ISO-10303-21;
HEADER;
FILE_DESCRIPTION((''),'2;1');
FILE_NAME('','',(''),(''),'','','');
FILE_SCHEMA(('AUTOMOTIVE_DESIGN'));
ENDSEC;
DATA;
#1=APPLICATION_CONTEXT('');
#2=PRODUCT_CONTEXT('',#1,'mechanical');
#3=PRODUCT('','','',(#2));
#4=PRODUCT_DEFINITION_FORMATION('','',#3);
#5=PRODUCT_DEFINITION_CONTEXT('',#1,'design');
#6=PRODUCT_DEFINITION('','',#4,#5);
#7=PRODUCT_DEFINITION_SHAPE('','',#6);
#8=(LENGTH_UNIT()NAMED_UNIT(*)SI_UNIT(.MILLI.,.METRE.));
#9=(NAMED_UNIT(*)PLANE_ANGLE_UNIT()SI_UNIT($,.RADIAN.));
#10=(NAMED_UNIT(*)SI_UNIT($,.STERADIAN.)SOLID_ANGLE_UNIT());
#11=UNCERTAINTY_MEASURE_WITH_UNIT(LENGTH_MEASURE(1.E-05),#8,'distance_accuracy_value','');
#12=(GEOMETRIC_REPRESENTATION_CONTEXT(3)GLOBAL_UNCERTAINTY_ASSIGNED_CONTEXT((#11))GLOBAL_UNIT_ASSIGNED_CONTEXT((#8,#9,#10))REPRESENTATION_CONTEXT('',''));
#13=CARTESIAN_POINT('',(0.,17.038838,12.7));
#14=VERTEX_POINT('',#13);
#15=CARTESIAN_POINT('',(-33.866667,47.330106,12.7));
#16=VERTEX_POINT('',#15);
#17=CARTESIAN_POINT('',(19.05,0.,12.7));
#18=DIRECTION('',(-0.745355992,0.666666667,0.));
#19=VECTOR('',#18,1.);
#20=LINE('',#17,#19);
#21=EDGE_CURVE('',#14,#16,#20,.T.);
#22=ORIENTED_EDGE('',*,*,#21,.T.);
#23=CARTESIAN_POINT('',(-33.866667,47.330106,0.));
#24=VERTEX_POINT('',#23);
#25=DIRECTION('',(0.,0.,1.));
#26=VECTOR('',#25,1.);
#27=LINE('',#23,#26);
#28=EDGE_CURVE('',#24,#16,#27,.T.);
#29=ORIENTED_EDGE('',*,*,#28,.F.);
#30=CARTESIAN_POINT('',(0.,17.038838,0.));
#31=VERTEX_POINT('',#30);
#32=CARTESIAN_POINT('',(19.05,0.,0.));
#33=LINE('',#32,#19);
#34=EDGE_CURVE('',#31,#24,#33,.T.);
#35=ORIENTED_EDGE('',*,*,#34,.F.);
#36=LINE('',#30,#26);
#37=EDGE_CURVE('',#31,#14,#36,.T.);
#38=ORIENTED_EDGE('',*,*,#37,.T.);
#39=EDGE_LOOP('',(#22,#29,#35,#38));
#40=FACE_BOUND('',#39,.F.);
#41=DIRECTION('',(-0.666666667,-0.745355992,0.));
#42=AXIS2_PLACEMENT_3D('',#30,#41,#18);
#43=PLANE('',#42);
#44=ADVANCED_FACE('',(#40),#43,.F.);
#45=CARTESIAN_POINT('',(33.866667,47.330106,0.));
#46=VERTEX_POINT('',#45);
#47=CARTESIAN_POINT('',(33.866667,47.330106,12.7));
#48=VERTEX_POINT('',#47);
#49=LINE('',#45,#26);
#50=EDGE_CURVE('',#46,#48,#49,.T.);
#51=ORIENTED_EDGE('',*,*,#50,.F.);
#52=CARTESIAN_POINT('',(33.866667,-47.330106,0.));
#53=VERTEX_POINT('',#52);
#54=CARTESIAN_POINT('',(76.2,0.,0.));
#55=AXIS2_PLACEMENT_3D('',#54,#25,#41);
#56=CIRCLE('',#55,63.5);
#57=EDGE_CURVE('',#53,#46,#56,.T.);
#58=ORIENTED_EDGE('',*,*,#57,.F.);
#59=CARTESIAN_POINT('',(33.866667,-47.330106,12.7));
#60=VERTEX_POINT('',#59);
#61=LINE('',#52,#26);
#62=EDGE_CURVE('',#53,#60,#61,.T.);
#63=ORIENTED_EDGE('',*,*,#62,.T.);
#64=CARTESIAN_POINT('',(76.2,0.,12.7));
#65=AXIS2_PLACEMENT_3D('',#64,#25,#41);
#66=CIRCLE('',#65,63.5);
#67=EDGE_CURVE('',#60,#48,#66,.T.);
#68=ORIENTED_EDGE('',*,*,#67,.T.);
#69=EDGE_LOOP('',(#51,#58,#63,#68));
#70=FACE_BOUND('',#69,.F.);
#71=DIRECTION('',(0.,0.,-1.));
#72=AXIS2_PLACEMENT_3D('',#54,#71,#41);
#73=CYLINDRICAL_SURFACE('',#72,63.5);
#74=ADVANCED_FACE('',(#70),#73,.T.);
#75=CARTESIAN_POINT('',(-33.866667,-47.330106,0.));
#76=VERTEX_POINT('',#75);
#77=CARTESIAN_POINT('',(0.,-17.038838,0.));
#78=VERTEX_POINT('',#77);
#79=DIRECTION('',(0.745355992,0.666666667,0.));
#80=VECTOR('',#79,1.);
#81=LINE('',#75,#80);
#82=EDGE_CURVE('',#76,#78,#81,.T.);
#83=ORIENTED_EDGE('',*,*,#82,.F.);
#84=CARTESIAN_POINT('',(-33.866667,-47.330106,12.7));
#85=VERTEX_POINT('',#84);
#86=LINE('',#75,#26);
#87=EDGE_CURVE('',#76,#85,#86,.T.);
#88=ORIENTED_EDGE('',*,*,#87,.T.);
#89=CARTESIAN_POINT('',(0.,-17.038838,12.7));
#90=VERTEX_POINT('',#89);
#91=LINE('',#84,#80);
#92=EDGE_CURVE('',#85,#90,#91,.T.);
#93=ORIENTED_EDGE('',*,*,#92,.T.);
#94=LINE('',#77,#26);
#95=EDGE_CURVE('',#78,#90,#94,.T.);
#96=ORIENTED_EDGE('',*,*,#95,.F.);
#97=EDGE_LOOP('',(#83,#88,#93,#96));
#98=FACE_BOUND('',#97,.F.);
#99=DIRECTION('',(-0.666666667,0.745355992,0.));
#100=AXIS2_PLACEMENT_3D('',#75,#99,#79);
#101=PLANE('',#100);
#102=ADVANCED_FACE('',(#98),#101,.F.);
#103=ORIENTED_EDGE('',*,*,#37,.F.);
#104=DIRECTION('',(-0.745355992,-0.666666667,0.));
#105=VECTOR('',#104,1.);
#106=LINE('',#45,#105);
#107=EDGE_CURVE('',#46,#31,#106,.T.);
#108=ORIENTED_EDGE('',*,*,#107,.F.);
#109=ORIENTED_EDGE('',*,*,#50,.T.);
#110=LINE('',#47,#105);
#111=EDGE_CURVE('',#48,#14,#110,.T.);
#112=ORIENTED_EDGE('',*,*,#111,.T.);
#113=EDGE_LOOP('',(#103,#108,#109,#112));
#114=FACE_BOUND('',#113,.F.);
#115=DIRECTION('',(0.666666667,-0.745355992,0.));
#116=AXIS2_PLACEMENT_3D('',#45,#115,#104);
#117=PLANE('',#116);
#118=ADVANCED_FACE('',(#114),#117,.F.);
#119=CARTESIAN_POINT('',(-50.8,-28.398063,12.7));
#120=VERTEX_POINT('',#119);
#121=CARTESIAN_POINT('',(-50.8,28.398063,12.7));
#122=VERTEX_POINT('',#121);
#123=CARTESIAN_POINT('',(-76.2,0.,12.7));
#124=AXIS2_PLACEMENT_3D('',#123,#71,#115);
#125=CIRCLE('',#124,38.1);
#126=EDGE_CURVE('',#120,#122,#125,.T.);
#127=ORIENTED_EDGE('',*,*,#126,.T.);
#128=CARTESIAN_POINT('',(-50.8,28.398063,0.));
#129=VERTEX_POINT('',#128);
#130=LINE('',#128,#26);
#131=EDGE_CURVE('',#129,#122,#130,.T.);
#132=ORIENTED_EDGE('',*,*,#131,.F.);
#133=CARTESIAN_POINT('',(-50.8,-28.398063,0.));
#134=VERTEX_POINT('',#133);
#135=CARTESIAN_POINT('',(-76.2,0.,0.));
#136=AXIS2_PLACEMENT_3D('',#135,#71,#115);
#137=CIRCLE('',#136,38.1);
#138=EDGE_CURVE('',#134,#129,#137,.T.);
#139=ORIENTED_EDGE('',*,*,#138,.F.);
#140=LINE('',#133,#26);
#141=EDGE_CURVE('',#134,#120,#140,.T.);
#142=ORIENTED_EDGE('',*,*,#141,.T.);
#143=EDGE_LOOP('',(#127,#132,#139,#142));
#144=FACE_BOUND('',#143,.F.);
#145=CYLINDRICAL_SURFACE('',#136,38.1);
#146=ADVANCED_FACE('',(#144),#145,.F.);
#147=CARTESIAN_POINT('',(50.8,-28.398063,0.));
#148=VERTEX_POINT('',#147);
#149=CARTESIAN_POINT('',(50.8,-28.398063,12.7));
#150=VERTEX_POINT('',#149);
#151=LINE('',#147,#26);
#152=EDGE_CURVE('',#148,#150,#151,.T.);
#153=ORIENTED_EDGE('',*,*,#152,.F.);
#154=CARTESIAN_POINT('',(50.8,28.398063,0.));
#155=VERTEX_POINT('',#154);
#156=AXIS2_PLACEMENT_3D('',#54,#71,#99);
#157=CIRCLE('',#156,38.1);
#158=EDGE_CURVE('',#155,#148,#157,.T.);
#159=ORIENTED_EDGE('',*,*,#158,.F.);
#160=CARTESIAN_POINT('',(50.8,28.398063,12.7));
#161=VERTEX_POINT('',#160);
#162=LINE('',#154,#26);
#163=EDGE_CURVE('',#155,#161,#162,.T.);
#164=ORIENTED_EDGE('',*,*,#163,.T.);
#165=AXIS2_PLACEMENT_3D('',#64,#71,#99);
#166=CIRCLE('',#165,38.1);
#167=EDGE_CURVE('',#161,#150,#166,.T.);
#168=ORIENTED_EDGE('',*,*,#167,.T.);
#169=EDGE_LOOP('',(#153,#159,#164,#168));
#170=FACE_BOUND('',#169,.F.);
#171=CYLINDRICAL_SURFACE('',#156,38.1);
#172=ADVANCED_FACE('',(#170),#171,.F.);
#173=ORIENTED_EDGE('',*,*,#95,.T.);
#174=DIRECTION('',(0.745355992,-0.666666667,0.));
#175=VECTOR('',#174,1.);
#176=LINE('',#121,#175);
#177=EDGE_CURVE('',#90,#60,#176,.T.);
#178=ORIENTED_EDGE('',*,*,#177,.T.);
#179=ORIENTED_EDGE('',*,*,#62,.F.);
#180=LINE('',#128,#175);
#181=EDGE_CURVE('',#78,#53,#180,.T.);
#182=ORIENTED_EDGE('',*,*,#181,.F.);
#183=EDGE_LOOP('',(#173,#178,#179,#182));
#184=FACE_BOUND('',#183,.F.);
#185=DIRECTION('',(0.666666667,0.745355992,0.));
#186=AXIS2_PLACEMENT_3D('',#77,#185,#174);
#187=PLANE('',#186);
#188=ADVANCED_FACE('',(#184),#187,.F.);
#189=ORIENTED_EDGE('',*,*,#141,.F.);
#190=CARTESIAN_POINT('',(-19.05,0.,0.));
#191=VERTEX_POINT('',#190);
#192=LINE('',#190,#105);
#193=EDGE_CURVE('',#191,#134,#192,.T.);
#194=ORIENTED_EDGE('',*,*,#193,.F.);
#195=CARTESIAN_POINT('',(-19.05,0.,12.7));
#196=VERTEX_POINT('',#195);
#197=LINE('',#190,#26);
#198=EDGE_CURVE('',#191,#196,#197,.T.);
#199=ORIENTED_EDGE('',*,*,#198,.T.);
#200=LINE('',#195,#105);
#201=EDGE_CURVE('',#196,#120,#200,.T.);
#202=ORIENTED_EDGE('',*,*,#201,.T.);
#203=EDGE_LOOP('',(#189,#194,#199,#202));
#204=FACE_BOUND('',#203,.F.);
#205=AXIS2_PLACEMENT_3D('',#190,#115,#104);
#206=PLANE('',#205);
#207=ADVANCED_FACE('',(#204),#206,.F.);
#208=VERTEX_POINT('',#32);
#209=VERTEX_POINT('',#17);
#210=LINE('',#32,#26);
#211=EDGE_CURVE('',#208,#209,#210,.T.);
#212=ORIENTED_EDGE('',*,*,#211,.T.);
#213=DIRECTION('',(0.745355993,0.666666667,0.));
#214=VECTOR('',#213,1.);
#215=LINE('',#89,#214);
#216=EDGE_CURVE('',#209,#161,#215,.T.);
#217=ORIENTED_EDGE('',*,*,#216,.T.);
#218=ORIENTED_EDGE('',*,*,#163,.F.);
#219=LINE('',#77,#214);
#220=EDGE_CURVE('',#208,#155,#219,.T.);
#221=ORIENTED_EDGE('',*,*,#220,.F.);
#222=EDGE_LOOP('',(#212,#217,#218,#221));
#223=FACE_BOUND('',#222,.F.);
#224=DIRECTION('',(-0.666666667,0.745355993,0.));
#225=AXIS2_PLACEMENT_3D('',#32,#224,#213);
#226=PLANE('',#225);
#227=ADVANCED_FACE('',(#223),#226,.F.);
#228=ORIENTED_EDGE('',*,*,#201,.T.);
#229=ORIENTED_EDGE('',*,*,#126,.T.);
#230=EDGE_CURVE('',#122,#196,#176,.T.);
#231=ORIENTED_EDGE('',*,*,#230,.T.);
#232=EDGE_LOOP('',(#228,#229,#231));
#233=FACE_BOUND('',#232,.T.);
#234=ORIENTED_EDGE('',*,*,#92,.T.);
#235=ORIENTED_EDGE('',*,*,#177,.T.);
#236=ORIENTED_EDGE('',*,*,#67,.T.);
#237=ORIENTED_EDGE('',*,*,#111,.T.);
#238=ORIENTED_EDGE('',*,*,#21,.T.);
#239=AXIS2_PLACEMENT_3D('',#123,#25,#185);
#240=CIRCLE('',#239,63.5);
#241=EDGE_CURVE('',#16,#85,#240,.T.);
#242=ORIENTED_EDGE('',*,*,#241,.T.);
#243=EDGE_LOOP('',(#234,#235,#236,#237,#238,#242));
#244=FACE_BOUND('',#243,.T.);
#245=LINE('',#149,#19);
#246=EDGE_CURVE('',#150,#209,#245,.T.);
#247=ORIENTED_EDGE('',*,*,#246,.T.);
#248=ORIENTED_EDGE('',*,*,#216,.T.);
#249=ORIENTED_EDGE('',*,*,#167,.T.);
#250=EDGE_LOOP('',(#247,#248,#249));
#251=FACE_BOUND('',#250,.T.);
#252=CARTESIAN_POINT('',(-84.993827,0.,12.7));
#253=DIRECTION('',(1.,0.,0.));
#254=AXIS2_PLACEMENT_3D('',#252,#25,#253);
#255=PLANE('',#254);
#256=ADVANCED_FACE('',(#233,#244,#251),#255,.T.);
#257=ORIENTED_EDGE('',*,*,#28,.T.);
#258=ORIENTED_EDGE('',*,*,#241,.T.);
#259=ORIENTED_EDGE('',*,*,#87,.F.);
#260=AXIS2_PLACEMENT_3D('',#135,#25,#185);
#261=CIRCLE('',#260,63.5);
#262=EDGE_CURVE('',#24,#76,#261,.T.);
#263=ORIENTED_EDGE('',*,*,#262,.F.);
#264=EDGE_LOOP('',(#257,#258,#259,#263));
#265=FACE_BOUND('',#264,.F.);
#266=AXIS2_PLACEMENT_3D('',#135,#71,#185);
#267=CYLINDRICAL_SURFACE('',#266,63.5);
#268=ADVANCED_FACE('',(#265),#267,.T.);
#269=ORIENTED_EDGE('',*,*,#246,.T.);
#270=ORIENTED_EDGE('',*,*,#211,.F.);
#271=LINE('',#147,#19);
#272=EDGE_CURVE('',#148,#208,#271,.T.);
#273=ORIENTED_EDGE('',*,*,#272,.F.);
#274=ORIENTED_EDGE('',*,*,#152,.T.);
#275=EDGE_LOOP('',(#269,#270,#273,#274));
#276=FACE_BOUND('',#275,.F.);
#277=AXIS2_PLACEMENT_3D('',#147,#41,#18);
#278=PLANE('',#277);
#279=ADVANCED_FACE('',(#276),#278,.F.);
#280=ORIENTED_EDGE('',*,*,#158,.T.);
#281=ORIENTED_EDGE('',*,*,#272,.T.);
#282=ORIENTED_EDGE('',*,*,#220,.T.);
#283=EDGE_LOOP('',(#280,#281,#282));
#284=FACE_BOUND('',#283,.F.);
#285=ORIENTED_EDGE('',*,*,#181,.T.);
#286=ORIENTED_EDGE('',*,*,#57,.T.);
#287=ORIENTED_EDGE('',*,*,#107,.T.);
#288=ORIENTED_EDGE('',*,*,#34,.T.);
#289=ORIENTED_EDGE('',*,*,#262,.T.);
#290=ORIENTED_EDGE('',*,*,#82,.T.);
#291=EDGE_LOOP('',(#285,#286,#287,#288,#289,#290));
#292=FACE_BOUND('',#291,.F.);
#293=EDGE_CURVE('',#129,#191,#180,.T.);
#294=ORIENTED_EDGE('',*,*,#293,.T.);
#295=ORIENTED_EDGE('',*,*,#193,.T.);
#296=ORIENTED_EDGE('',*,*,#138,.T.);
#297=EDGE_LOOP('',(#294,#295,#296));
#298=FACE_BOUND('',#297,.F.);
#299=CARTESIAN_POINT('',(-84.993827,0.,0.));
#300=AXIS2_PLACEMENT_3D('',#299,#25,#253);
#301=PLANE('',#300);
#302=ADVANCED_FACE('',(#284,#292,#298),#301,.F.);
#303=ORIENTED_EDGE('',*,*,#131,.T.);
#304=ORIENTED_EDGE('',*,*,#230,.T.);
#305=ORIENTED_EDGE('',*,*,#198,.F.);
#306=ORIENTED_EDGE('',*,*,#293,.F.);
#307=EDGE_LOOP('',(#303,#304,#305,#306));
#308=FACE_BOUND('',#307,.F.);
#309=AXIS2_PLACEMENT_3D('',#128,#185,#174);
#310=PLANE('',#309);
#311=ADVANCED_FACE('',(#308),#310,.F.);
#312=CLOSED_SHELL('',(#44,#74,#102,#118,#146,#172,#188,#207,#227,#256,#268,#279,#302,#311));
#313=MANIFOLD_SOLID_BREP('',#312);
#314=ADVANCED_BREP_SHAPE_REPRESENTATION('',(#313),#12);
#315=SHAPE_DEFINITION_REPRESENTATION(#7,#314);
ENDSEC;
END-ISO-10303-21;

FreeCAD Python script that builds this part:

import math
import FreeCAD as App
import Part
import Sketcher
Q = App.Units.Quantity

doc = App.newDocument("Part")
params = doc.addObject("Spreadsheet::Sheet", "Params")
for row, (alias, value) in enumerate([
    ("sketch1_radius", "2.5 in"),
    ("sketch1_radius2", "1.5 in"),
    ("pad1_length", "0.5 in"),
], start=1):
    params.set(f"A{row}", alias)
    params.set(f"B{row}", "=" + value)
    params.setAlias(f"B{row}", alias)

body = doc.addObject("PartDesign::Body", "Body")

sketch1 = body.newObject("Sketcher::SketchObject", "Sketch")
sketch1.AttachmentSupport = (doc.getObject("XY_Plane"), [""])
sketch1.MapMode = "FlatFace"
sketch1.addGeometry([
    Part.LineSegment(App.Vector(0, -17, 0), App.Vector(34, -47, 0)),
    Part.ArcOfCircle(Part.Circle(App.Vector(76, 0, 0), App.Vector(0, 0, 1), 64), math.radians(-132), math.radians(132)),
    Part.LineSegment(App.Vector(34, 47, 0), App.Vector(0, 17, 0)),
    Part.LineSegment(App.Vector(0, 17, 0), App.Vector(-34, 47, 0)),
    Part.ArcOfCircle(Part.Circle(App.Vector(-76, 0, 0), App.Vector(0, 0, 1), 64), math.radians(48), math.radians(312)),
    Part.LineSegment(App.Vector(-34, -47, 0), App.Vector(0, -17, 0)),
    Part.ArcOfCircle(Part.Circle(App.Vector(-76, 0, 0), App.Vector(0, 0, 1), 38), math.radians(48), math.radians(312)),
    Part.LineSegment(App.Vector(-51, 28, 0), App.Vector(-19, 0, 0)),
    Part.LineSegment(App.Vector(-19, 0, 0), App.Vector(-51, -28, 0)),
    Part.LineSegment(App.Vector(19, 0, 0), App.Vector(51, 28, 0)),
    Part.ArcOfCircle(Part.Circle(App.Vector(76, 0, 0), App.Vector(0, 0, 1), 38), math.radians(-132), math.radians(132)),
    Part.LineSegment(App.Vector(51, -28, 0), App.Vector(19, 0, 0)),
], False)
sketch1.addConstraint([
    Sketcher.Constraint("Tangent", 0, 2, 1, 1),
    Sketcher.Constraint("Tangent", 1, 2, 2, 1),
    Sketcher.Constraint("Coincident", 2, 2, 3, 1),
    Sketcher.Constraint("Tangent", 3, 2, 4, 1),
    Sketcher.Constraint("Tangent", 4, 2, 5, 1),
    Sketcher.Constraint("Coincident", 5, 2, 0, 1),
    Sketcher.Constraint("Tangent", 6, 1, 7, 1),
    Sketcher.Constraint("Coincident", 7, 2, 8, 1),
    Sketcher.Constraint("Tangent", 8, 2, 6, 2),
    Sketcher.Constraint("Tangent", 9, 2, 10, 2),
    Sketcher.Constraint("Tangent", 10, 1, 11, 1),
    Sketcher.Constraint("Coincident", 11, 2, 9, 1),
    Sketcher.Constraint("Coincident", 6, 3, 4, 3),
    Sketcher.Constraint("Coincident", 10, 3, 1, 3),
    Sketcher.Constraint("Equal", 1, 4),
    Sketcher.Constraint("Equal", 6, 10),
    Sketcher.Constraint("Symmetric", 1, 3, 4, 3, -1, 1),
    Sketcher.Constraint("Symmetric", 2, 2, 5, 2, -1, 1),
    Sketcher.Constraint("Symmetric", 7, 2, 11, 2, -1, 1),
    Sketcher.Constraint("Symmetric", 1, 2, 3, 2, -2),
    Sketcher.Constraint("PointOnObject", 7, 2, -1),
    Sketcher.Constraint("Parallel", 3, 7),
    Sketcher.Constraint("Radius", 1, Q("2.5 in")),
    Sketcher.Constraint("Radius", 6, Q("1.5 in")),
    Sketcher.Constraint("DistanceX", -1, 1, 1, 3, Q("3 in")),
    Sketcher.Constraint("DistanceX", 6, 1, -1, 1, Q("2 in")),
])
sketch1.setExpression("Constraints[22]", "Params.sketch1_radius")
sketch1.setExpression("Constraints[23]", "Params.sketch1_radius2")
pad1 = body.newObject("PartDesign::Pad", "Pad")
pad1.Profile = sketch1
pad1.setExpression("Length", "Params.pad1_length")

doc.recompute()
